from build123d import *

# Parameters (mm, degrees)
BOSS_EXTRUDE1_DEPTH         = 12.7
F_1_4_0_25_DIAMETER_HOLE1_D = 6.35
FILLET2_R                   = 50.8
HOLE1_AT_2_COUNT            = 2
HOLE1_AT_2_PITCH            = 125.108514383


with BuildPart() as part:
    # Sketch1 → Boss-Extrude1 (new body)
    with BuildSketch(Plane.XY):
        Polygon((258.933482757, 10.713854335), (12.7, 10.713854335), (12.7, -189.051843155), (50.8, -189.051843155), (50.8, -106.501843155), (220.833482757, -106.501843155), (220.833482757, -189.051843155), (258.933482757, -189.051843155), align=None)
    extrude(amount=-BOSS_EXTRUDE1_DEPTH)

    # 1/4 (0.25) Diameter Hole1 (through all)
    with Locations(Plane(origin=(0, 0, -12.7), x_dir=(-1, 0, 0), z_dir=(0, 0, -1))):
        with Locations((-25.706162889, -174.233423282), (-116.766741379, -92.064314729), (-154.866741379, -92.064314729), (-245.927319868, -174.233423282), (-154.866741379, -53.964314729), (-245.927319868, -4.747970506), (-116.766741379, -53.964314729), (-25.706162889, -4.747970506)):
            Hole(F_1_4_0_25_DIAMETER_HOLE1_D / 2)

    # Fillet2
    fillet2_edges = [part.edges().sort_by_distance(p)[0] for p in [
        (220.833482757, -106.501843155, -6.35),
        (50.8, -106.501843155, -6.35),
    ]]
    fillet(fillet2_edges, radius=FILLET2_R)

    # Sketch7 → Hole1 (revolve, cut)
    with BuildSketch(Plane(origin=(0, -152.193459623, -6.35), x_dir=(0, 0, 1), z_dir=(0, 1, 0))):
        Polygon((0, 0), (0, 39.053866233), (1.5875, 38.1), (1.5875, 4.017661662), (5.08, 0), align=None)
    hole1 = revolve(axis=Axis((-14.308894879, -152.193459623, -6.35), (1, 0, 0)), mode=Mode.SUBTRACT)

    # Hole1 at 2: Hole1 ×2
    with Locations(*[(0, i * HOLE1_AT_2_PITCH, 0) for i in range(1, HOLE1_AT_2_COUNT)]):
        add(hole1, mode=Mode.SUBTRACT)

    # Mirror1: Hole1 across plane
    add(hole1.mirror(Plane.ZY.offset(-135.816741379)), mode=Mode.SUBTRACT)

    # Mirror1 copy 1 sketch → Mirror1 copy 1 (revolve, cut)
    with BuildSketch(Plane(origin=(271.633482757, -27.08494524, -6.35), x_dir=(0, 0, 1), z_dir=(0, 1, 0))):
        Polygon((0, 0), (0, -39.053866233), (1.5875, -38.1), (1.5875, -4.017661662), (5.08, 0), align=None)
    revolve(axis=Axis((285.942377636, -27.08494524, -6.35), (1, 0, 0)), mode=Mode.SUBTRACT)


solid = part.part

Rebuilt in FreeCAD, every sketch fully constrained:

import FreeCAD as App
import Part
import Sketcher
from FreeCAD import Vector
Q = App.Units.Quantity


def edges_at(feature, points):
    """Names of the edges that pass closest to the given points."""
    edges = feature.Shape.Edges
    near = lambda p: min(range(len(edges)), key=lambda i: edges[i].distToShape(Part.Vertex(*p))[0])
    return sorted({f"Edge{near(p) + 1}" for p in points})

doc = App.newDocument("Part")
body = doc.addObject("PartDesign::Body", "Body")

sketch1 = body.newObject("Sketcher::SketchObject", "Sketch")
sketch1.AttachmentSupport = (doc.getObject("XY_Plane"), [""])
sketch1.MapMode = "FlatFace"
sketch1.addGeometry([
    Part.LineSegment(Vector(259, 11, 0), Vector(13, 11, 0)),
    Part.LineSegment(Vector(13, 11, 0), Vector(13, -189, 0)),
    Part.LineSegment(Vector(13, -189, 0), Vector(51, -189, 0)),
    Part.LineSegment(Vector(51, -189, 0), Vector(51, -107, 0)),
    Part.LineSegment(Vector(51, -107, 0), Vector(221, -107, 0)),
    Part.LineSegment(Vector(221, -107, 0), Vector(221, -189, 0)),
    Part.LineSegment(Vector(221, -189, 0), Vector(259, -189, 0)),
    Part.LineSegment(Vector(259, -189, 0), Vector(259, 11, 0)),
], False)
sketch1.addConstraint([
    Sketcher.Constraint("Coincident", 0, 2, 1, 1),
    Sketcher.Constraint("Coincident", 1, 2, 2, 1),
    Sketcher.Constraint("Coincident", 2, 2, 3, 1),
    Sketcher.Constraint("Coincident", 3, 2, 4, 1),
    Sketcher.Constraint("Coincident", 4, 2, 5, 1),
    Sketcher.Constraint("Coincident", 5, 2, 6, 1),
    Sketcher.Constraint("Coincident", 6, 2, 7, 1),
    Sketcher.Constraint("Coincident", 7, 2, 0, 1),
    Sketcher.Constraint("Horizontal", 0),
    Sketcher.Constraint("Vertical", 1),
    Sketcher.Constraint("Horizontal", 2),
    Sketcher.Constraint("Vertical", 3),
    Sketcher.Constraint("Horizontal", 4),
    Sketcher.Constraint("Vertical", 5),
    Sketcher.Constraint("Horizontal", 6),
    Sketcher.Constraint("Vertical", 7),
    Sketcher.Constraint("Horizontal", 2, 2, 5, 2),
    Sketcher.Constraint("Equal", 2, 6),
    Sketcher.Constraint("DistanceX", 2, 1, 2, 2, Q("1.5 in")),
    Sketcher.Constraint("DistanceX", -1, 1, 2, 2, Q("2 in")),
    Sketcher.Constraint("DistanceY", 3, 1, 3, 2, Q("3.25 in")),
    Sketcher.Constraint("DistanceX", 0, 2, 0, 1, 246.233483),
    Sketcher.Constraint("DistanceY", 1, 2, 1, 1, 199.765697),
    Sketcher.Constraint("DistanceY", -1, 1, 0, 2, 10.713854),
])
pad1 = body.newObject("PartDesign::Pad", "Pad")
pad1.Profile = sketch1
pad1.Length = Q("0.5 in")
pad1.Reversed = True

sketch2 = body.newObject("Sketcher::SketchObject", "Sketch001")
sketch2.AttachmentSupport = (doc.getObject("XY_Plane"), [""])
sketch2.MapMode = "FlatFace"
sketch2.AttachmentOffset = App.Placement(Vector(0, 0, -0.5 * 25.4), App.Rotation())
sketch2.addGeometry([
    Part.Circle(Vector(25.7, -174.2, 0), Vector(0, 0, 1), 3.2),
    Part.Circle(Vector(116.8, -92.1, 0), Vector(0, 0, 1), 3.2),
    Part.Circle(Vector(154.9, -92.1, 0), Vector(0, 0, 1), 3.2),
    Part.Circle(Vector(245.9, -174.2, 0), Vector(0, 0, 1), 3.2),
    Part.Circle(Vector(154.9, -54, 0), Vector(0, 0, 1), 3.2),
    Part.Circle(Vector(245.9, -4.7, 0), Vector(0, 0, 1), 3.2),
    Part.Circle(Vector(116.8, -54, 0), Vector(0, 0, 1), 3.2),
    Part.Circle(Vector(25.7, -4.7, 0), Vector(0, 0, 1), 3.2),
], False)
sketch2.addConstraint([
    Sketcher.Constraint("Equal", 0, 1),
    Sketcher.Constraint("Equal", 1, 2),
    Sketcher.Constraint("Equal", 2, 3),
    Sketcher.Constraint("Equal", 3, 4),
    Sketcher.Constraint("Equal", 4, 5),
    Sketcher.Constraint("Equal", 5, 6),
    Sketcher.Constraint("Equal", 6, 7),
    Sketcher.Constraint("Horizontal", 1, 3, 2, 3),
    Sketcher.Constraint("Horizontal", 0, 3, 3, 3),
    Sketcher.Constraint("Horizontal", 4, 3, 6, 3),
    Sketcher.Constraint("Horizontal", 5, 3, 7, 3),
    Sketcher.Constraint("Vertical", 2, 3, 4, 3),
    Sketcher.Constraint("Vertical", 3, 3, 5, 3),
    Sketcher.Constraint("Vertical", 1, 3, 6, 3),
    Sketcher.Constraint("Vertical", 0, 3, 7, 3),
    Sketcher.Constraint("Diameter", 0, Q("0.25 in")),
    Sketcher.Constraint("DistanceX", 1, 3, 2, 3, Q("1.5 in")),
    Sketcher.Constraint("DistanceY", 2, 3, 4, 3, Q("1.5 in")),
    Sketcher.Constraint("DistanceX", -1, 1, 1, 3, 116.766741),
    Sketcher.Constraint("DistanceX", -1, 1, 3, 3, 245.92732),
    Sketcher.Constraint("DistanceY", 5, 3, -1, 1, 4.747971),
    Sketcher.Constraint("DistanceX", 0, 3, 1, 3, 91.060578),
    Sketcher.Constraint("DistanceY", 0, 3, 1, 3, 82.169109),
    Sketcher.Constraint("DistanceY", 0, 3, -1, 1, 174.233423),
])
doc.recompute()
hole = body.newObject("PartDesign::Hole", "Hole")
hole.Profile = sketch2
hole.ThreadType = "None"
hole.Diameter = Q("0.25 in")
hole.DepthType = "ThroughAll"
hole.Reversed = True
doc.recompute()

fillet = body.newObject("PartDesign::Fillet", "Fillet")
fillet.Base = (hole, edges_at(hole, [(220.833, -106.502, -6.35), (50.8, -106.502, -6.35)]))
fillet.Radius = Q("2 in")

sketch3 = body.newObject("Sketcher::SketchObject", "Sketch002")
sketch3.AttachmentSupport = (doc.getObject("XZ_Plane"), [""])
sketch3.MapMode = "FlatFace"
sketch3.AttachmentOffset = App.Placement(Vector(0, 0, 152.19346), App.Rotation())
sketch3.addGeometry([
    Part.LineSegment(Vector(39.1, -6.3, 0), Vector(0, -6.3, 0)),
    Part.LineSegment(Vector(0, -6.3, 0), Vector(0, -1.3, 0)),
    Part.LineSegment(Vector(0, -1.3, 0), Vector(4, -4.8, 0)),
    Part.LineSegment(Vector(4, -4.8, 0), Vector(38.1, -4.8, 0)),
    Part.LineSegment(Vector(38.1, -4.8, 0), Vector(39.1, -6.3, 0)),
], False)
sketch3.addGeometry(Part.LineSegment(Vector(0, -6.3, 0), Vector(39.1, -6.3, 0)), True)
sketch3.addConstraint([
    Sketcher.Constraint("Coincident", 0, 2, 1, 1),
    Sketcher.Constraint("Coincident", 1, 2, 2, 1),
    Sketcher.Constraint("Coincident", 2, 2, 3, 1),
    Sketcher.Constraint("Coincident", 3, 2, 4, 1),
    Sketcher.Constraint("Coincident", 4, 2, 0, 1),
    Sketcher.Constraint("Horizontal", 0),
    Sketcher.Constraint("Vertical", 1),
    Sketcher.Constraint("Horizontal", 3),
    Sketcher.Constraint("Horizontal", 5),
    Sketcher.Constraint("Coincident", 5, 1, 0, 2),
    Sketcher.Constraint("PointOnObject", 0, 2, -2),
    Sketcher.Constraint("Equal", 0, 5),
    Sketcher.Constraint("DistanceY", 1, 1, 1, 2, Q("0.2 in")),
    Sketcher.Constraint("Angle", 2, Q("-41 deg")),
    Sketcher.Constraint("Angle", 4, Q("-59 deg")),
    Sketcher.Constraint("DistanceX", -1, 1, 3, 2, Q("1.5 in")),
    Sketcher.Constraint("DistanceY", 0, 2, -1, 1, Q("0.25 in")),
    Sketcher.Constraint("DistanceY", 2, 2, -1, 1, Q("0.1875 in")),
])
groove = body.newObject("PartDesign::Groove", "Groove")
groove.Profile = sketch3
groove.ReferenceAxis = (sketch3, ["Axis0"])
groove.Angle = 360
doc.recompute()

linearpattern = body.newObject("PartDesign::LinearPattern", "LinearPattern")
linearpattern.Originals = [groove]
linearpattern.Direction = (doc.getObject("Y_Axis"), [""])
linearpattern.Mode = "offset"
linearpattern.Offset = 125.108514
linearpattern.Occurrences = 2
body.Tip = linearpattern
doc.recompute()

datumplane = body.newObject("PartDesign::Plane", "DatumPlane")
datumplane.AttachmentSupport = (doc.getObject("YZ_Plane"), [""])
datumplane.MapMode = "FlatFace"
datumplane.AttachmentOffset = App.Placement(Vector(0, 0, 135.816741), App.Rotation())
mirrored = body.newObject("PartDesign::Mirrored", "Mirrored")
mirrored.Originals = [groove]
mirrored.MirrorPlane = (datumplane, [""])
body.Tip = mirrored

sketch4 = body.newObject("Sketcher::SketchObject", "Sketch003")
sketch4.AttachmentSupport = (doc.getObject("XZ_Plane"), [""])
sketch4.MapMode = "FlatFace"
sketch4.AttachmentOffset = App.Placement(Vector(0, 0, 27.084945), App.Rotation())
sketch4.addGeometry([
    Part.LineSegment(Vector(271.6, -6.3, 0), Vector(232.6, -6.3, 0)),
    Part.LineSegment(Vector(232.6, -6.3, 0), Vector(233.5, -4.8, 0)),
    Part.LineSegment(Vector(233.5, -4.8, 0), Vector(267.6, -4.8, 0)),
    Part.LineSegment(Vector(267.6, -4.8, 0), Vector(271.6, -1.3, 0)),
    Part.LineSegment(Vector(271.6, -1.3, 0), Vector(271.6, -6.3, 0)),
], False)
sketch4.addGeometry(Part.LineSegment(Vector(232.6, -6.3, 0), Vector(271.6, -6.3, 0)), True)
sketch4.addConstraint([
    Sketcher.Constraint("Coincident", 0, 2, 1, 1),
    Sketcher.Constraint("Coincident", 1, 2, 2, 1),
    Sketcher.Constraint("Coincident", 2, 2, 3, 1),
    Sketcher.Constraint("Coincident", 3, 2, 4, 1),
    Sketcher.Constraint("Coincident", 4, 2, 0, 1),
    Sketcher.Constraint("Horizontal", 0),
    Sketcher.Constraint("Horizontal", 2),
    Sketcher.Constraint("Vertical", 4),
    Sketcher.Constraint("Horizontal", 5),
    Sketcher.Constraint("Coincident", 5, 1, 0, 2),
    Sketcher.Constraint("Vertical", 3, 2, 5, 2),
    Sketcher.Constraint("DistanceY", 4, 2, 4, 1, Q("0.2 in")),
    Sketcher.Constraint("Angle", 1, Q("59 deg")),
    Sketcher.Constraint("Angle", 3, Q("41 deg")),
    Sketcher.Constraint("DistanceX", 1, 2, 3, 2, Q("1.5 in")),
    Sketcher.Constraint("DistanceY", 0, 2, -1, 1, Q("0.25 in")),
    Sketcher.Constraint("DistanceY", 1, 2, -1, 1, Q("0.1875 in")),
    Sketcher.Constraint("DistanceX", -1, 1, 2, 2, 267.615821),
])
groove2 = body.newObject("PartDesign::Groove", "Groove001")
groove2.Profile = sketch4
groove2.ReferenceAxis = (sketch4, ["Axis0"])
groove2.Angle = 360

doc.recompute()
